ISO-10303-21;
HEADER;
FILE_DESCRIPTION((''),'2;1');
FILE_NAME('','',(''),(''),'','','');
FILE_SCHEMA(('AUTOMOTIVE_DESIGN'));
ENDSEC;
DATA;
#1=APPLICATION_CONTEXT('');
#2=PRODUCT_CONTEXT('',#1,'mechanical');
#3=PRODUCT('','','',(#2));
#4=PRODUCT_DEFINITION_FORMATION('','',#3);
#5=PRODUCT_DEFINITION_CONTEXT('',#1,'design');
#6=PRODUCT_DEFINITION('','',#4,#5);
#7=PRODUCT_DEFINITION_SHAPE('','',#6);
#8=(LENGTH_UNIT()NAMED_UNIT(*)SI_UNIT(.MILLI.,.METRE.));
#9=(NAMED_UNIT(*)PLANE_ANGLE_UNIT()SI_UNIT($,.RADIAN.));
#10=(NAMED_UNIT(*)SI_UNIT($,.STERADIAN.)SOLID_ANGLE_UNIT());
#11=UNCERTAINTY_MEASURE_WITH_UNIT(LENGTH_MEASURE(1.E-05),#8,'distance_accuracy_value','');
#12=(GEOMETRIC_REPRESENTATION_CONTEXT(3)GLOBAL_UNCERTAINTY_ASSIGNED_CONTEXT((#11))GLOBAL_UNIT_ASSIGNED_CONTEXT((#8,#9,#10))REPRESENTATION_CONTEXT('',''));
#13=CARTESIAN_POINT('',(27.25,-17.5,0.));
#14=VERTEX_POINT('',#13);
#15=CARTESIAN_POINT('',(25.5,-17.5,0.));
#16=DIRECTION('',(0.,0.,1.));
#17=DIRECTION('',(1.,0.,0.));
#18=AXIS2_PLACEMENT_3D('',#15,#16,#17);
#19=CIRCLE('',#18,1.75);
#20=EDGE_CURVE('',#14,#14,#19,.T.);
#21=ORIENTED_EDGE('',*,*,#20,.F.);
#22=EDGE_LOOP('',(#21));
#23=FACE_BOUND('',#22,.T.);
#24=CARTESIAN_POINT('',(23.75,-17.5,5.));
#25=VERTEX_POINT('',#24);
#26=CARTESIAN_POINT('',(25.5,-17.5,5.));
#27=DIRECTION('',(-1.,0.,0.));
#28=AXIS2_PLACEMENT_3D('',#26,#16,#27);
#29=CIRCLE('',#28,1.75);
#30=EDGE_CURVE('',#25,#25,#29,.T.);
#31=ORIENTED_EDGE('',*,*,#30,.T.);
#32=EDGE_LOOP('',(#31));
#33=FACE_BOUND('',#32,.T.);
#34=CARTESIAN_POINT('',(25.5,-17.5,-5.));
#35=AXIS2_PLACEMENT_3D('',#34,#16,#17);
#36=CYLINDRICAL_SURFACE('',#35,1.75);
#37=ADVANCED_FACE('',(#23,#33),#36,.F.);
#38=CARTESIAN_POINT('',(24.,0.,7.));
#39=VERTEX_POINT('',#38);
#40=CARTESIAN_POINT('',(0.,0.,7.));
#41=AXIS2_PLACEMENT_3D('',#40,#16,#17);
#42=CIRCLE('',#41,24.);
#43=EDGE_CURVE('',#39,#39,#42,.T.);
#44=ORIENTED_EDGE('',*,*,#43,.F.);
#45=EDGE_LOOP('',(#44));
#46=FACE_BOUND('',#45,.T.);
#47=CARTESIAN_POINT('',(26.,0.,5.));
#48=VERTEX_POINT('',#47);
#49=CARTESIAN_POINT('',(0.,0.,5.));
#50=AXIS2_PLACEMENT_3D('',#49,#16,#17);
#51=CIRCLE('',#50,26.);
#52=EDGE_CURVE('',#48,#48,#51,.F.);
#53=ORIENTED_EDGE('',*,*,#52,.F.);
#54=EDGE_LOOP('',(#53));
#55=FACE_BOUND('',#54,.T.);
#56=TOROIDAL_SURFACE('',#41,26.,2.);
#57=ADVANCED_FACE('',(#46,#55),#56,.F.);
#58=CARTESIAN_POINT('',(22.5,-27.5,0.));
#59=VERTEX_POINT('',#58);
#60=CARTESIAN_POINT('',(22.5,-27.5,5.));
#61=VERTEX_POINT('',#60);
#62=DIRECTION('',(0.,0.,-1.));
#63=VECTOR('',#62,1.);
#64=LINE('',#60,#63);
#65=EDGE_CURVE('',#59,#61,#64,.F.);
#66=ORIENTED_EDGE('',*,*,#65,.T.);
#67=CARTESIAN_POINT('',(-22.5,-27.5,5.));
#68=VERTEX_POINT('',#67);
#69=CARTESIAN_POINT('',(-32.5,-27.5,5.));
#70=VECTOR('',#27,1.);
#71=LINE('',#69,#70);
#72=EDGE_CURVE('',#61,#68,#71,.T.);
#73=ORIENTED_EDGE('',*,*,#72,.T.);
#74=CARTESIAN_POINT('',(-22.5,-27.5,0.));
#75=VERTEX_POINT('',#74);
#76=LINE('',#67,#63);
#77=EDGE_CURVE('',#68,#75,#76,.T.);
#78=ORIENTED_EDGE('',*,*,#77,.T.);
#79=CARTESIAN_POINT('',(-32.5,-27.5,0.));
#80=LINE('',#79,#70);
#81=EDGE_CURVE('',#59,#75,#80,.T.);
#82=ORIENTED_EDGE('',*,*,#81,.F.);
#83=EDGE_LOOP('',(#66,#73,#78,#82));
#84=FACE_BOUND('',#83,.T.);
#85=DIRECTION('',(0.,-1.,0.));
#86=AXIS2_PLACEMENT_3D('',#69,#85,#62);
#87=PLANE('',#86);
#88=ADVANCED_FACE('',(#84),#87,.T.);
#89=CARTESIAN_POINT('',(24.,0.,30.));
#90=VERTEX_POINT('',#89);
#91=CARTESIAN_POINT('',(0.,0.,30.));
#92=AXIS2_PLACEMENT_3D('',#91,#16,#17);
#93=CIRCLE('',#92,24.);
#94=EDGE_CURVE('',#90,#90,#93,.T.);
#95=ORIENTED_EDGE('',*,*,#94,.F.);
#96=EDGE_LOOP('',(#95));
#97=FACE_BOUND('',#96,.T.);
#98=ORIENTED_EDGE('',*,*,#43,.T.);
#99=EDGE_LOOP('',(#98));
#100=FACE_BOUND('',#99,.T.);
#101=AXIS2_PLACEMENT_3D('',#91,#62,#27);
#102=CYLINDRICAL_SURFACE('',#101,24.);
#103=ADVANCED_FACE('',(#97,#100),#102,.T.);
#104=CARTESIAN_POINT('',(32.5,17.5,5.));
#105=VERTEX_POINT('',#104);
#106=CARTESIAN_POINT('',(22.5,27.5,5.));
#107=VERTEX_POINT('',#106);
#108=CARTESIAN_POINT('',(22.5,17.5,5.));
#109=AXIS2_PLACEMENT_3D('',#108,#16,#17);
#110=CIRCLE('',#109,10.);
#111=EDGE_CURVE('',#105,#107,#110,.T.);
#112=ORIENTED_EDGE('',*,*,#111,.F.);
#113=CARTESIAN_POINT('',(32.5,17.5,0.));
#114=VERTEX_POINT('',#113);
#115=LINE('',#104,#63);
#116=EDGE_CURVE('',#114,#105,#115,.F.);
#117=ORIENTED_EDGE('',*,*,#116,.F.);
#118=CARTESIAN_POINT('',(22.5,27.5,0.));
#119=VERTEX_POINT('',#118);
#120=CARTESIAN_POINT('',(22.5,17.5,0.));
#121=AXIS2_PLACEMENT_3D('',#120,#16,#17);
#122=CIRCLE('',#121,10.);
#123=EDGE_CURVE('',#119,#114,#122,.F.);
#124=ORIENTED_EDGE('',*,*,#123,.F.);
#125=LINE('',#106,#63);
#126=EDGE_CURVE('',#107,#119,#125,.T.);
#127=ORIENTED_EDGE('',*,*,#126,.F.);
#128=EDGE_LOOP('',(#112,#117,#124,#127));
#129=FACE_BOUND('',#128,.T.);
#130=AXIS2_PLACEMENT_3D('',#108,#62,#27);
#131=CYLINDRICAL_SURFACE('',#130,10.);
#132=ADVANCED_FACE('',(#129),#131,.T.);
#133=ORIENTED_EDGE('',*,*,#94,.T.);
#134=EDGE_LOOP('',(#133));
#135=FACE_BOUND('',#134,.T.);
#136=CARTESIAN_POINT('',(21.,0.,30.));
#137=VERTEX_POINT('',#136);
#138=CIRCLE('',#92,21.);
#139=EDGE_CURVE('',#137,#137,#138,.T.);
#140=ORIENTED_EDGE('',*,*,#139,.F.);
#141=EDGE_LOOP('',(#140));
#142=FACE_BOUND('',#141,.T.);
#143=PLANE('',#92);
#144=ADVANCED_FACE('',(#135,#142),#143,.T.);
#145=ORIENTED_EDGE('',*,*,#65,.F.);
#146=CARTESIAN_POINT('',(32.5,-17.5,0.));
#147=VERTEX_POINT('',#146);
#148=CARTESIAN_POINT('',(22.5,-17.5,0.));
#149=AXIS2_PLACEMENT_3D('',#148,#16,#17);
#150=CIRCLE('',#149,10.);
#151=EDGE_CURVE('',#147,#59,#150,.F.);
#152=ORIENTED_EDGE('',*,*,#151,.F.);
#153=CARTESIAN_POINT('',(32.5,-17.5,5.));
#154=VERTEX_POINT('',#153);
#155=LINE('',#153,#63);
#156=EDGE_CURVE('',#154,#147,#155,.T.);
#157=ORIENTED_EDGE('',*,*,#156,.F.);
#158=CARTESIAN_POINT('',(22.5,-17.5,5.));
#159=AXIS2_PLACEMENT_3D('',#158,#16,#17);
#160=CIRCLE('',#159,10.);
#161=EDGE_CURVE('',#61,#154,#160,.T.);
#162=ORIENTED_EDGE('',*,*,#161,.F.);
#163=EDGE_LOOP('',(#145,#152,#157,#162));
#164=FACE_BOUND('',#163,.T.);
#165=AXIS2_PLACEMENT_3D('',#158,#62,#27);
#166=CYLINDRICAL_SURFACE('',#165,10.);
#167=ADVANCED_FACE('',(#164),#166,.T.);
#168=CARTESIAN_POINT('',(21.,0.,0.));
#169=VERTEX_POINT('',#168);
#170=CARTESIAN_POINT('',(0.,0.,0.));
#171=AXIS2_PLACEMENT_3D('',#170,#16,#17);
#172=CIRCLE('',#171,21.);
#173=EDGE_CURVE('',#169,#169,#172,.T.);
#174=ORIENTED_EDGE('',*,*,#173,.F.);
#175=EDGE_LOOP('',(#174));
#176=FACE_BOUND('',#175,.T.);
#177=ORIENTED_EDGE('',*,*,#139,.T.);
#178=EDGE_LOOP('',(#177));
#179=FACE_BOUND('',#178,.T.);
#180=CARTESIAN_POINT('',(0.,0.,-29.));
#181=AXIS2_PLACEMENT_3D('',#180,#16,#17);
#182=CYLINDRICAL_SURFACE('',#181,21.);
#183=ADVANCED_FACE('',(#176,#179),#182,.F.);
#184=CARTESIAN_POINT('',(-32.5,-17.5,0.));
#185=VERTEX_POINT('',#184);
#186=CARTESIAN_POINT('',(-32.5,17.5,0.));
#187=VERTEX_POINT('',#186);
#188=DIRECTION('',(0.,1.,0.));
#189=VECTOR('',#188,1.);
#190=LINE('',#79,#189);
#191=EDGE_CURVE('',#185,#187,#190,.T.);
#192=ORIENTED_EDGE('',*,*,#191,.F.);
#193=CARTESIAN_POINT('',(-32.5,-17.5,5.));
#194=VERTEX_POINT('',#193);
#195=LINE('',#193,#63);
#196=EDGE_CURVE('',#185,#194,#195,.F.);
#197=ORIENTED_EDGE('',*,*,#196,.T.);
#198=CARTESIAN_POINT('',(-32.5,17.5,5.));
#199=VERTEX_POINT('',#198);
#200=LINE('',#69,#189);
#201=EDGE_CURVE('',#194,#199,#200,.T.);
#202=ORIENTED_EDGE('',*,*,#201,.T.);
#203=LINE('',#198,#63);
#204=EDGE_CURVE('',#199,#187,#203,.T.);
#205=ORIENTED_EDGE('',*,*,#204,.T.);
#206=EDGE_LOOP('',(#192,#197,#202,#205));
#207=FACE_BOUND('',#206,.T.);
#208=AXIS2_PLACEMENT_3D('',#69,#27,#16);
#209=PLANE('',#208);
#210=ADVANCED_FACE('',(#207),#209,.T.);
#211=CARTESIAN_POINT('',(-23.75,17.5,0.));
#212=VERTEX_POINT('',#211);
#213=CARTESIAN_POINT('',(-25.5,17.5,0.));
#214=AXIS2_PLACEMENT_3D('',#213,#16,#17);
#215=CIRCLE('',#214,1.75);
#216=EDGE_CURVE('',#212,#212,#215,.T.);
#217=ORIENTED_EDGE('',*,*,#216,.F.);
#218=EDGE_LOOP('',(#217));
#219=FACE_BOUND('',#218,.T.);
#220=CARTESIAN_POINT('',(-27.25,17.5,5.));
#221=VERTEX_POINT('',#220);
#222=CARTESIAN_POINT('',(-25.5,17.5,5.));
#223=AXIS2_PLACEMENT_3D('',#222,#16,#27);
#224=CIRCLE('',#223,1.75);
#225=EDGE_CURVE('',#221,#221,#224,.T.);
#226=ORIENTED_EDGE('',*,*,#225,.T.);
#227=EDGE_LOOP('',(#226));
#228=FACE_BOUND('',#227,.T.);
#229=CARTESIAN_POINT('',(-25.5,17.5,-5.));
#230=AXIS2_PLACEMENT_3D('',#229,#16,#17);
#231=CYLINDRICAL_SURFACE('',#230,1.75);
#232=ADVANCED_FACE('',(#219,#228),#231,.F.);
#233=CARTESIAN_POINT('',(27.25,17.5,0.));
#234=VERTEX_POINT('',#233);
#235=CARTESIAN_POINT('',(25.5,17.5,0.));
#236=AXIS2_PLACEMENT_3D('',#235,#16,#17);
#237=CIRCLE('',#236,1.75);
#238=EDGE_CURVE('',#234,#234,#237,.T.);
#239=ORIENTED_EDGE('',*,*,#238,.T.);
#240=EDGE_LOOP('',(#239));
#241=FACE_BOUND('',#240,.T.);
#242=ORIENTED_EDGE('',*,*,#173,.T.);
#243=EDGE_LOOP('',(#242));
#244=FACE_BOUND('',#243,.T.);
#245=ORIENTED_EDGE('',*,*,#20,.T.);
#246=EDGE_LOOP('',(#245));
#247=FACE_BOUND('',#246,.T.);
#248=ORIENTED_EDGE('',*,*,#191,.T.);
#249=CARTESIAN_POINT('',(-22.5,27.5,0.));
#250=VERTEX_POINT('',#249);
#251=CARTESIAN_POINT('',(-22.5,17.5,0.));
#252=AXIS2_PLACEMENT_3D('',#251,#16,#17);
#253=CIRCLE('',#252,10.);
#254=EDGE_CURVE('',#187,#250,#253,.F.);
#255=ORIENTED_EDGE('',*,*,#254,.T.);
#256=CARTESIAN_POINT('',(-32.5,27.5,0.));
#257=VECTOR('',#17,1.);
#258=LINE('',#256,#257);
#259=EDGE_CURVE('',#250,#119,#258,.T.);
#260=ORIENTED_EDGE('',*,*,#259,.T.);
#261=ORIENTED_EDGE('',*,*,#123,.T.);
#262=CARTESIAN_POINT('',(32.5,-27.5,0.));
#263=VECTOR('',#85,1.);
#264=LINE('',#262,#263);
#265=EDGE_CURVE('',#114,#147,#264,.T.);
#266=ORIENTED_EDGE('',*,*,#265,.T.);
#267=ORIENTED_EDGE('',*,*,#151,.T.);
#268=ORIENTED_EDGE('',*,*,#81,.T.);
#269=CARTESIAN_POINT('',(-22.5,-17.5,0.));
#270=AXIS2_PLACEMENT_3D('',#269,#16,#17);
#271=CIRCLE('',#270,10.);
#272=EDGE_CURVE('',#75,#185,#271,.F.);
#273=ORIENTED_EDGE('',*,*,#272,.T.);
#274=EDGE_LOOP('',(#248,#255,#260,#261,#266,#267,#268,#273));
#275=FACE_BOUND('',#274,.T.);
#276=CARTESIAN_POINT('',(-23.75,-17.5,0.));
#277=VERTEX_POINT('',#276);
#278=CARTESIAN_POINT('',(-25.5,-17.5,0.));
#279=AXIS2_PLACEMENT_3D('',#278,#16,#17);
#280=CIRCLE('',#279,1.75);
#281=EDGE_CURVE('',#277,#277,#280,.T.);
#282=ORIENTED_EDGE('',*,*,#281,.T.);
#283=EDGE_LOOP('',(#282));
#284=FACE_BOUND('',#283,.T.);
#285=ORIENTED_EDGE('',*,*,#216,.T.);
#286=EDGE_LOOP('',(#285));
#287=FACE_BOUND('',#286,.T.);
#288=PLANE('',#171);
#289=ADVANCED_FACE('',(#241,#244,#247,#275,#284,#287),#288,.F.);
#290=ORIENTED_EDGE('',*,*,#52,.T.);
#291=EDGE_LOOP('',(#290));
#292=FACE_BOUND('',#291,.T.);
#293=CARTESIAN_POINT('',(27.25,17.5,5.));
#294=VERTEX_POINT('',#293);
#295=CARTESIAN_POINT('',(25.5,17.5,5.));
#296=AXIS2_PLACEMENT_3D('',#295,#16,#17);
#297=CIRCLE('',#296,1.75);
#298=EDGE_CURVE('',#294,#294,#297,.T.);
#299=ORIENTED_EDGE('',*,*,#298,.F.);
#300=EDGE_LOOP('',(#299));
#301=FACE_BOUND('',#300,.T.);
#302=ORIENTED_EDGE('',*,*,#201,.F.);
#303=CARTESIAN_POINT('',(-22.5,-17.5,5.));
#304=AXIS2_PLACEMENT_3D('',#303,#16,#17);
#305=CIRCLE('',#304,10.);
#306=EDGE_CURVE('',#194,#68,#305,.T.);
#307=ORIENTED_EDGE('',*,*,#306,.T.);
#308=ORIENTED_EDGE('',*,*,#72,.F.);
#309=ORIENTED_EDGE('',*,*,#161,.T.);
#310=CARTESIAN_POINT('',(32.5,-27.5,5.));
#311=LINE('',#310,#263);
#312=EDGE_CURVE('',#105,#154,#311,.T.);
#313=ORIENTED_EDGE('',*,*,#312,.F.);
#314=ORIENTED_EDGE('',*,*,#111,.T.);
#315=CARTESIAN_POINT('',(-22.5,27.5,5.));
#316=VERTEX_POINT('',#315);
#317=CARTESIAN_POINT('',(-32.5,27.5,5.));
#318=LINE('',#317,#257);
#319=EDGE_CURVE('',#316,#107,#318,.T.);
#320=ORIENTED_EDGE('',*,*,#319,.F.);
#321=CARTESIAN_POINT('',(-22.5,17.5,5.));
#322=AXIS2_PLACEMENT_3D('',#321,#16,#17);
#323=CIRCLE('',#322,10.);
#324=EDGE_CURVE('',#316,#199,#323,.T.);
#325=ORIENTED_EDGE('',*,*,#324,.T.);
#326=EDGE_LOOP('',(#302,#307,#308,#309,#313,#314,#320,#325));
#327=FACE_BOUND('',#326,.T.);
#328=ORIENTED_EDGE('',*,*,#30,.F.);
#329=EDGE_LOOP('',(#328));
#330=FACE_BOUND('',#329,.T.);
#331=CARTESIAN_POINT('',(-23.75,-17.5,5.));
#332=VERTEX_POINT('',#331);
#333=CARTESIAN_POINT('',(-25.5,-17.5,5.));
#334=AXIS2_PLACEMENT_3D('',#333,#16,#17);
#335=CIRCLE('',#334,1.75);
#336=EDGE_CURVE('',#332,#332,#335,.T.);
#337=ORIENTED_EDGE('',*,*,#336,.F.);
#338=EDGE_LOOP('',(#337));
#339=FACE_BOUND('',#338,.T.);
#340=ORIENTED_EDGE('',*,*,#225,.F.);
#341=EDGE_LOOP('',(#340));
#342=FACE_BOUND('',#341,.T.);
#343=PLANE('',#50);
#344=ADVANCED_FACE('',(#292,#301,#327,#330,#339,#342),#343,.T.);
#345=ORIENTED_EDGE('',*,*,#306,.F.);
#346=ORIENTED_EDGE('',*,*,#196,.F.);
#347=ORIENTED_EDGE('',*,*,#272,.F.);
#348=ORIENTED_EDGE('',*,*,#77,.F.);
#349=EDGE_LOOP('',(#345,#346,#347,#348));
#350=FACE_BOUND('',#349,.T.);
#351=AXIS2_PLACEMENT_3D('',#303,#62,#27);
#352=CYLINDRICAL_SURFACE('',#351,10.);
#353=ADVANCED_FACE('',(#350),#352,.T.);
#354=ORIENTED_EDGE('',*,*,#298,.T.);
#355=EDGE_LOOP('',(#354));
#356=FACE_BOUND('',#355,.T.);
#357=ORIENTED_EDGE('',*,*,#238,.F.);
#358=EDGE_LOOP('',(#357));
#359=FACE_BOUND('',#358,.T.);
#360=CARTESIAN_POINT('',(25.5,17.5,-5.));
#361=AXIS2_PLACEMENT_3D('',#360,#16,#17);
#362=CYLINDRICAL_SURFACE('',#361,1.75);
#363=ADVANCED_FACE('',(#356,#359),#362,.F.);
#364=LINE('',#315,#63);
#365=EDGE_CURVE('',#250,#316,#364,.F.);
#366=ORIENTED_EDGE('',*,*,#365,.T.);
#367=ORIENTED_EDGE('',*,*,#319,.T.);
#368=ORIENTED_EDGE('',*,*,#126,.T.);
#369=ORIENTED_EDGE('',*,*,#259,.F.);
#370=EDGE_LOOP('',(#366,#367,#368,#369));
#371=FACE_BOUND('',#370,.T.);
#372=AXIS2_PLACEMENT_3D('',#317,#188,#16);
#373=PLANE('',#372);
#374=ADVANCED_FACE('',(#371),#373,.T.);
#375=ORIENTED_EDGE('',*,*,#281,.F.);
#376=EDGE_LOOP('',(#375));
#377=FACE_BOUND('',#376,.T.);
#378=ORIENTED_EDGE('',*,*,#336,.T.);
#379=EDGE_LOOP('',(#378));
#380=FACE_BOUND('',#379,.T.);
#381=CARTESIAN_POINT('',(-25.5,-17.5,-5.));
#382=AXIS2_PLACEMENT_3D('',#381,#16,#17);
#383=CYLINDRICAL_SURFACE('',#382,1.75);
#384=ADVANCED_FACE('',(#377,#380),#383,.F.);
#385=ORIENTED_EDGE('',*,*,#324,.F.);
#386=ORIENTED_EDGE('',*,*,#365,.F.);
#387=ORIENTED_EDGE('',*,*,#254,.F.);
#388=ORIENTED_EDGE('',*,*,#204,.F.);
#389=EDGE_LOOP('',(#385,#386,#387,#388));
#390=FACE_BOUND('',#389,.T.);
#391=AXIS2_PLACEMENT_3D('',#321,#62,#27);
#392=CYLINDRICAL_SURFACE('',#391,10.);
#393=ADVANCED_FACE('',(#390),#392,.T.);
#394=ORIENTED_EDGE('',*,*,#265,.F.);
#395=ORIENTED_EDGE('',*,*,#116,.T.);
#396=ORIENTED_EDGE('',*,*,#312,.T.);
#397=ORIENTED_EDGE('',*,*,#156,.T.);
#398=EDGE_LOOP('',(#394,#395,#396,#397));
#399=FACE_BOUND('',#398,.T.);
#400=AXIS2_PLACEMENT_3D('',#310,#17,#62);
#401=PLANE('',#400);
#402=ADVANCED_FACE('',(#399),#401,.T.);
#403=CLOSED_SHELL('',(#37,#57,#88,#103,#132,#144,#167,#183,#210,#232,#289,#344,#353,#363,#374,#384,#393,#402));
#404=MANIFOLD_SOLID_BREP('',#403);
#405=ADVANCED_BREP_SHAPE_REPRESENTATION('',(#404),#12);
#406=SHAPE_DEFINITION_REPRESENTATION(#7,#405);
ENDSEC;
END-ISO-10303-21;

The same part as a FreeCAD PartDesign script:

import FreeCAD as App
import Part
import Sketcher

V = App.Vector


def edges_at(feature, points):
    """Names of the edges that pass closest to the given points."""
    edges = feature.Shape.Edges
    near = lambda p: min(range(len(edges)), key=lambda i: edges[i].distToShape(Part.Vertex(*p))[0])
    return sorted({f"Edge{near(p) + 1}" for p in points})


def add_polygon(sketch, points):
    """Adds a closed chain of lines whose ends are joined by coincident constraints."""
    first, n = sketch.GeometryCount, len(points)
    for a, b in zip(points, points[1:] + points[:1]):
        sketch.addGeometry(Part.LineSegment(App.Vector(*a, 0), App.Vector(*b, 0)), False)
    for i in range(n):
        sketch.addConstraint(Sketcher.Constraint("Coincident", first + i, 2, first + (i + 1) % n, 1))

doc = App.newDocument("Part")
params = doc.addObject("Spreadsheet::Sheet", "Params")
for row, (alias, value) in enumerate([
    ("sketch1_diameter", "55 mm"),
    ("pad1_length", "5 mm"),
    ("sketch2_diameter", "48 mm"),
    ("pad2_length", "25 mm"),
    ("sketch3_width", "65 mm"),
    ("sketch3_height", "55 mm"),
    ("pad3_length", "5 mm"),
    ("sketch4_diameter", "42 mm"),
    ("pocket1_length", "59 mm"),
    ("fillet_radius", "10 mm"),
    ("sketch5_diameter", "3.5 mm"),
    ("pocket2_length", "10 mm"),
    ("fillet2_radius", "2 mm"),
], start=1):
    params.set(f"A{row}", alias)
    params.set(f"B{row}", "=" + value)
    params.setAlias(f"B{row}", alias)

body = doc.addObject("PartDesign::Body", "Body")

sketch1 = body.newObject("Sketcher::SketchObject", "Sketch")
sketch1.AttachmentSupport = (doc.getObject("XY_Plane"), [""])
sketch1.MapMode = "FlatFace"
sketch1.addGeometry(Part.Circle(V(0, 0, 0), V(0, 0, 1), 27.5), False)
sketch1.addConstraint(Sketcher.Constraint("Coincident", 0, 3, -1, 1))
sketch1.addConstraint(Sketcher.Constraint("Diameter", 0, 55.0))
sketch1.setExpression("Constraints[1]", "Params.sketch1_diameter")
pad1 = body.newObject("PartDesign::Pad", "Pad")
pad1.Profile = sketch1
pad1.setExpression("Length", "Params.pad1_length")

sketch2 = body.newObject("Sketcher::SketchObject", "Sketch001")
sketch2.AttachmentSupport = (doc.getObject("XY_Plane"), [""])
sketch2.MapMode = "FlatFace"
sketch2.AttachmentOffset = App.Placement(V(0, 0, 5), App.Rotation())
sketch2.addGeometry(Part.Circle(V(0, 0, 0), V(0, 0, 1), 24), False)
sketch2.addConstraint(Sketcher.Constraint("Coincident", 0, 3, -1, 1))
sketch2.addConstraint(Sketcher.Constraint("Diameter", 0, 48.0))
sketch2.setExpression("Constraints[1]", "Params.sketch2_diameter")
pad2 = body.newObject("PartDesign::Pad", "Pad001")
pad2.Profile = sketch2
pad2.setExpression("Length", "Params.pad2_length")

sketch3 = body.newObject("Sketcher::SketchObject", "Sketch002")
sketch3.AttachmentSupport = (doc.getObject("XY_Plane"), [""])
sketch3.MapMode = "FlatFace"
add_polygon(sketch3, [(32.5, 27.5), (32.5, -27.5), (-32.5, -27.5), (-32.5, 27.5)])
sketch3.addConstraint(Sketcher.Constraint("Vertical", 0))
sketch3.addConstraint(Sketcher.Constraint("Horizontal", 1))
sketch3.addConstraint(Sketcher.Constraint("Vertical", 2))
sketch3.addConstraint(Sketcher.Constraint("Horizontal", 3))
sketch3.addConstraint(Sketcher.Constraint("Symmetric", 0, 2, 2, 2, -1, 1))
sketch3.addConstraint(Sketcher.Constraint("DistanceX", 1, 2, 1, 1, 65.0))
sketch3.addConstraint(Sketcher.Constraint("DistanceY", 0, 2, 0, 1, 55.0))
sketch3.setExpression("Constraints[9]", "Params.sketch3_width")
sketch3.setExpression("Constraints[10]", "Params.sketch3_height")
pad3 = body.newObject("PartDesign::Pad", "Pad002")
pad3.Profile = sketch3
pad3.setExpression("Length", "Params.pad3_length")

sketch4 = body.newObject("Sketcher::SketchObject", "Sketch003")
sketch4.AttachmentSupport = (doc.getObject("XY_Plane"), [""])
sketch4.MapMode = "FlatFace"
sketch4.AttachmentOffset = App.Placement(V(0, 0, 30), App.Rotation())
sketch4.addGeometry(Part.Circle(V(0, 0, 0), V(0, 0, 1), 21), False)
sketch4.addConstraint(Sketcher.Constraint("Coincident", 0, 3, -1, 1))
sketch4.addConstraint(Sketcher.Constraint("Diameter", 0, 42.0))
sketch4.setExpression("Constraints[1]", "Params.sketch4_diameter")
pocket1 = body.newObject("PartDesign::Pocket", "Pocket")
pocket1.Profile = sketch4
pocket1.setExpression("Length", "Params.pocket1_length")
doc.recompute()

fillet = body.newObject("PartDesign::Fillet", "Fillet")
fillet.Base = (pocket1, edges_at(pocket1, [
    (32.5, 27.5, 2.5),
    (-32.5, -27.5, 2.5),
    (32.5, -27.5, 2.5),
    (-32.5, 27.5, 2.5),
]))
fillet.setExpression("Radius", "Params.fillet_radius")

sketch5 = body.newObject("Sketcher::SketchObject", "Sketch004")
sketch5.AttachmentSupport = (doc.getObject("XY_Plane"), [""])
sketch5.MapMode = "FlatFace"
sketch5.AttachmentOffset = App.Placement(V(0, 0, 5), App.Rotation())
sketch5.addGeometry(Part.Circle(V(-25.5, -17.5, 0), V(0, 0, 1), 1.75), False)
sketch5.addGeometry(Part.Circle(V(-25.5, 17.5, 0), V(0, 0, 1), 1.75), False)
sketch5.addGeometry(Part.Circle(V(25.5, 17.5, 0), V(0, 0, 1), 1.75), False)
sketch5.addGeometry(Part.Circle(V(25.5, -17.5, 0), V(0, 0, 1), 1.75), False)
sketch5.addConstraint(Sketcher.Constraint("Equal", 0, 1))
sketch5.addConstraint(Sketcher.Constraint("Equal", 1, 2))
sketch5.addConstraint(Sketcher.Constraint("Equal", 2, 3))
sketch5.addConstraint(Sketcher.Constraint("Symmetric", 0, 3, 2, 3, -1, 1))
sketch5.addConstraint(Sketcher.Constraint("Symmetric", 1, 3, 3, 3, -1, 1))
sketch5.addConstraint(Sketcher.Constraint("Symmetric", 1, 3, 2, 3, -2))
sketch5.addConstraint(Sketcher.Constraint("Diameter", 0, 3.5))
sketch5.addConstraint(Sketcher.Constraint("DistanceY", 0, 3, 1, 3, 35.0))
sketch5.addConstraint(Sketcher.Constraint("DistanceX", 1, 3, 2, 3, 51.0))
sketch5.setExpression("Constraints[6]", "Params.sketch5_diameter")
pocket2 = body.newObject("PartDesign::Pocket", "Pocket001")
pocket2.Profile = sketch5
pocket2.setExpression("Length", "Params.pocket2_length")
doc.recompute()

fillet2 = body.newObject("PartDesign::Fillet", "Fillet001")
fillet2.Base = (pocket2, edges_at(pocket2, [(-24, 0, 5)]))
fillet2.setExpression("Radius", "Params.fillet2_radius")

doc.recompute()
